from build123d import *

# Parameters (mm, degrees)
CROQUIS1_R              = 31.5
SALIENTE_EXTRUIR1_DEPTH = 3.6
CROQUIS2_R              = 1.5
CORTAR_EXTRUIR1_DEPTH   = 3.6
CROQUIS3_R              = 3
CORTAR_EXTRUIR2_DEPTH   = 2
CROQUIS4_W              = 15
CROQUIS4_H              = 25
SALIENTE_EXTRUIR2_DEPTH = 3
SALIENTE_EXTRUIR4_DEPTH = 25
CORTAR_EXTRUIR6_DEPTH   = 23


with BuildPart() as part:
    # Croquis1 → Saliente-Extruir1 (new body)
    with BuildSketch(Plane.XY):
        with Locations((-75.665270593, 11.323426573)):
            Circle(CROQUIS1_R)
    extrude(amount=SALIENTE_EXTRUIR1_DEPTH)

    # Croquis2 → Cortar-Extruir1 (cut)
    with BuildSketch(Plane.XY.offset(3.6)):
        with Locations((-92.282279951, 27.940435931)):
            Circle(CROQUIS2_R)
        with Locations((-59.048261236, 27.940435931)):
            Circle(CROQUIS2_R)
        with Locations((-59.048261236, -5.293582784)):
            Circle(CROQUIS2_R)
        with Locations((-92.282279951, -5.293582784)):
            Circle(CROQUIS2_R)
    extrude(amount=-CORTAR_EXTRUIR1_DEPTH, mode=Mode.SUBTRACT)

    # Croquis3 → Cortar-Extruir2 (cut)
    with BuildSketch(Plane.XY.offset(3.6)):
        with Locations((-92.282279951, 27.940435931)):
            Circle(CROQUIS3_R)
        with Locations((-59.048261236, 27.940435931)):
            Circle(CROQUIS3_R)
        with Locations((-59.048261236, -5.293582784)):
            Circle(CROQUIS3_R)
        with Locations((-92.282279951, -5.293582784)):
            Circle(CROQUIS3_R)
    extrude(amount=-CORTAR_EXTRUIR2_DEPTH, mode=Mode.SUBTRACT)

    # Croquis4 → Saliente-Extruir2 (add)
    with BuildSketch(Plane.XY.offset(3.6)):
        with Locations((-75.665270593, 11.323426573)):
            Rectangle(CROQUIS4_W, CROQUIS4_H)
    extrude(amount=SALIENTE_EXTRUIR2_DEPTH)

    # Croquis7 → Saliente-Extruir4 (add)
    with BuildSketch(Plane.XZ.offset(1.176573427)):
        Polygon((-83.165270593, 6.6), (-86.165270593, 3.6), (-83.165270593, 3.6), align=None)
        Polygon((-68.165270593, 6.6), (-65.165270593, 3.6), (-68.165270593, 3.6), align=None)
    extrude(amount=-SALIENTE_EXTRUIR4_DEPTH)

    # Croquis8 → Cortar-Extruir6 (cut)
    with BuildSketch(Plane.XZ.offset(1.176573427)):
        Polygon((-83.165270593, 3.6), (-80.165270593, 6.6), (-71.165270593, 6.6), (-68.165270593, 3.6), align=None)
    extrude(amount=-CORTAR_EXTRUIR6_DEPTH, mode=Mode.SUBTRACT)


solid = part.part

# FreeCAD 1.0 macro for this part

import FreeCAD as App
import Part
import Sketcher


def add_polygon(sketch, points):
    """Adds a closed chain of lines whose ends are joined by coincident constraints."""
    first, n = sketch.GeometryCount, len(points)
    for a, b in zip(points, points[1:] + points[:1]):
        sketch.addGeometry(Part.LineSegment(App.Vector(*a, 0), App.Vector(*b, 0)), False)
    for i in range(n):
        sketch.addConstraint(Sketcher.Constraint("Coincident", first + i, 2, first + (i + 1) % n, 1))

doc = App.newDocument("Part")
params = doc.addObject("Spreadsheet::Sheet", "Params")
for row, (alias, value) in enumerate([
    ("sketch1_diameter", "63 mm"),
    ("pad1_length", "3.6 mm"),
    ("sketch2_diameter", "3 mm"),
    ("pocket1_length", "3.6 mm"),
    ("sketch3_diameter", "6 mm"),
    ("pocket2_length", "2 mm"),
    ("sketch4_width", "15 mm"),
    ("sketch4_height", "25 mm"),
    ("pad2_length", "3 mm"),
    ("sketch5_width", "3 mm"),
    ("pad3_length", "25 mm"),
    ("sketch6_width", "15 mm"),
    ("sketch6_width2", "9 mm"),
    ("pocket3_length", "23 mm"),
], start=1):
    params.set(f"A{row}", alias)
    params.set(f"B{row}", "=" + value)
    params.setAlias(f"B{row}", alias)

body = doc.addObject("PartDesign::Body", "Body")

sketch1 = body.newObject("Sketcher::SketchObject", "Sketch")
sketch1.AttachmentSupport = (doc.getObject("XY_Plane"), [""])
sketch1.MapMode = "FlatFace"
sketch1.addGeometry(Part.Circle(App.Vector(-75.665271, 11.323427, 0), App.Vector(0, 0, 1), 31.5), False)
sketch1.addConstraint([
    Sketcher.Constraint("Diameter", 0, 63.0),
    Sketcher.Constraint("DistanceX", 0, 3, -1, 1, 75.665271),
    Sketcher.Constraint("DistanceY", -1, 1, 0, 3, 11.323427),
])
sketch1.setExpression("Constraints[0]", "Params.sketch1_diameter")
pad1 = body.newObject("PartDesign::Pad", "Pad")
pad1.Profile = sketch1
pad1.setExpression("Length", "Params.pad1_length")

sketch2 = body.newObject("Sketcher::SketchObject", "Sketch001")
sketch2.AttachmentSupport = (doc.getObject("XY_Plane"), [""])
sketch2.MapMode = "FlatFace"
sketch2.AttachmentOffset = App.Placement(App.Vector(0, 0, 3.6), App.Rotation())
sketch2.addGeometry([
    Part.Circle(App.Vector(-92.28228, 27.940436, 0), App.Vector(0, 0, 1), 1.5),
    Part.Circle(App.Vector(-59.048261, 27.940436, 0), App.Vector(0, 0, 1), 1.5),
    Part.Circle(App.Vector(-59.048261, -5.293583, 0), App.Vector(0, 0, 1), 1.5),
    Part.Circle(App.Vector(-92.28228, -5.293583, 0), App.Vector(0, 0, 1), 1.5),
], False)
sketch2.addConstraint([
    Sketcher.Constraint("Equal", 0, 1),
    Sketcher.Constraint("Equal", 1, 2),
    Sketcher.Constraint("Equal", 2, 3),
    Sketcher.Constraint("Horizontal", 0, 3, 1, 3),
    Sketcher.Constraint("Horizontal", 2, 3, 3, 3),
    Sketcher.Constraint("Vertical", 1, 3, 2, 3),
    Sketcher.Constraint("Vertical", 0, 3, 3, 3),
    Sketcher.Constraint("Diameter", 0, 3.0),
    Sketcher.Constraint("DistanceX", 0, 3, -1, 1, 92.28228),
    Sketcher.Constraint("DistanceX", 1, 3, -1, 1, 59.048261),
    Sketcher.Constraint("DistanceY", 2, 3, 1, 3, 33.234019),
    Sketcher.Constraint("DistanceY", -1, 1, 0, 3, 27.940436),
])
sketch2.setExpression("Constraints[7]", "Params.sketch2_diameter")
pocket1 = body.newObject("PartDesign::Pocket", "Pocket")
pocket1.Profile = sketch2
pocket1.setExpression("Length", "Params.pocket1_length")

sketch3 = body.newObject("Sketcher::SketchObject", "Sketch002")
sketch3.AttachmentSupport = (doc.getObject("XY_Plane"), [""])
sketch3.MapMode = "FlatFace"
sketch3.AttachmentOffset = App.Placement(App.Vector(0, 0, 3.6), App.Rotation())
sketch3.addGeometry([
    Part.Circle(App.Vector(-92.28228, 27.940436, 0), App.Vector(0, 0, 1), 3),
    Part.Circle(App.Vector(-59.048261, 27.940436, 0), App.Vector(0, 0, 1), 3),
    Part.Circle(App.Vector(-59.048261, -5.293583, 0), App.Vector(0, 0, 1), 3),
    Part.Circle(App.Vector(-92.28228, -5.293583, 0), App.Vector(0, 0, 1), 3),
], False)
sketch3.addConstraint([
    Sketcher.Constraint("Equal", 0, 1),
    Sketcher.Constraint("Equal", 1, 2),
    Sketcher.Constraint("Equal", 2, 3),
    Sketcher.Constraint("Horizontal", 0, 3, 1, 3),
    Sketcher.Constraint("Horizontal", 2, 3, 3, 3),
    Sketcher.Constraint("Vertical", 1, 3, 2, 3),
    Sketcher.Constraint("Vertical", 0, 3, 3, 3),
    Sketcher.Constraint("Diameter", 0, 6.0),
    Sketcher.Constraint("DistanceX", 0, 3, -1, 1, 92.28228),
    Sketcher.Constraint("DistanceX", 1, 3, -1, 1, 59.048261),
    Sketcher.Constraint("DistanceY", 2, 3, 1, 3, 33.234019),
    Sketcher.Constraint("DistanceY", -1, 1, 0, 3, 27.940436),
])
sketch3.setExpression("Constraints[7]", "Params.sketch3_diameter")
pocket2 = body.newObject("PartDesign::Pocket", "Pocket001")
pocket2.Profile = sketch3
pocket2.setExpression("Length", "Params.pocket2_length")

sketch4 = body.newObject("Sketcher::SketchObject", "Sketch003")
sketch4.AttachmentSupport = (doc.getObject("XY_Plane"), [""])
sketch4.MapMode = "FlatFace"
sketch4.AttachmentOffset = App.Placement(App.Vector(0, 0, 3.6), App.Rotation())
add_polygon(sketch4, [(-83.165271, 23.823427), (-83.165271, -1.176573), (-68.165271, -1.176573), (-68.165271, 23.823427)])
sketch4.addConstraint([
    Sketcher.Constraint("Vertical", 0),
    Sketcher.Constraint("Horizontal", 1),
    Sketcher.Constraint("Vertical", 2),
    Sketcher.Constraint("Horizontal", 3),
    Sketcher.Constraint("DistanceX", 1, 1, 1, 2, 15.0),
    Sketcher.Constraint("DistanceY", 0, 2, 0, 1, 25.0),
    Sketcher.Constraint("DistanceX", 0, 2, -1, 1, 83.165271),
    Sketcher.Constraint("DistanceY", 0, 2, -1, 1, 1.176573),
])
sketch4.setExpression("Constraints[8]", "Params.sketch4_width")
sketch4.setExpression("Constraints[9]", "Params.sketch4_height")
pad2 = body.newObject("PartDesign::Pad", "Pad001")
pad2.Profile = sketch4
pad2.setExpression("Length", "Params.pad2_length")

sketch5 = body.newObject("Sketcher::SketchObject", "Sketch004")
sketch5.AttachmentSupport = (doc.getObject("XZ_Plane"), [""])
sketch5.MapMode = "FlatFace"
sketch5.AttachmentOffset = App.Placement(App.Vector(0, 0, 1.176573), App.Rotation())
add_polygon(sketch5, [(-83.165271, 6.6), (-86.165271, 3.6), (-83.165271, 3.6)])
add_polygon(sketch5, [(-65.165271, 3.6), (-68.165271, 6.6), (-68.165271, 3.6)])
sketch5.addConstraint([
    Sketcher.Constraint("Horizontal", 1),
    Sketcher.Constraint("Vertical", 2),
    Sketcher.Constraint("Vertical", 4),
    Sketcher.Constraint("Horizontal", 5),
    Sketcher.Constraint("Perpendicular", 0, 3),
    Sketcher.Constraint("Horizontal", 2, 2, 3, 2),
    Sketcher.Constraint("Horizontal", 1, 2, 4, 2),
    Sketcher.Constraint("Equal", 1, 5),
    Sketcher.Constraint("DistanceX", 1, 1, 1, 2, 3.0),
    Sketcher.Constraint("DistanceX", 2, 2, 3, 2, 15.0),
    Sketcher.Constraint("DistanceY", -1, 1, 0, 2, 3.6),
    Sketcher.Constraint("DistanceX", 0, 2, -1, 1, 86.165271),
])
sketch5.setExpression("Constraints[14]", "Params.sketch5_width")
pad3 = body.newObject("PartDesign::Pad", "Pad002")
pad3.Profile = sketch5
pad3.setExpression("Length", "Params.pad3_length")
pad3.Reversed = True

sketch6 = body.newObject("Sketcher::SketchObject", "Sketch005")
sketch6.AttachmentSupport = (doc.getObject("XZ_Plane"), [""])
sketch6.MapMode = "FlatFace"
sketch6.AttachmentOffset = App.Placement(App.Vector(0, 0, 1.176573), App.Rotation())
add_polygon(sketch6, [(-80.165271, 6.6), (-83.165271, 3.6), (-68.165271, 3.6), (-71.165271, 6.6)])
sketch6.addConstraint([
    Sketcher.Constraint("Horizontal", 1),
    Sketcher.Constraint("Horizontal", 3),
    Sketcher.Constraint("Perpendicular", 0, 2),
    Sketcher.Constraint("Equal", 0, 2),
    Sketcher.Constraint("DistanceX", 1, 1, 1, 2, 15.0),
    Sketcher.Constraint("DistanceX", 3, 2, 3, 1, 9.0),
    Sketcher.Constraint("DistanceY", -1, 1, 0, 2, 3.6),
    Sketcher.Constraint("DistanceX", 0, 2, -1, 1, 83.165271),
])
sketch6.setExpression("Constraints[8]", "Params.sketch6_width")
sketch6.setExpression("Constraints[9]", "Params.sketch6_width2")
pocket3 = body.newObject("PartDesign::Pocket", "Pocket002")
pocket3.Profile = sketch6
pocket3.setExpression("Length", "Params.pocket3_length")

doc.recompute()
